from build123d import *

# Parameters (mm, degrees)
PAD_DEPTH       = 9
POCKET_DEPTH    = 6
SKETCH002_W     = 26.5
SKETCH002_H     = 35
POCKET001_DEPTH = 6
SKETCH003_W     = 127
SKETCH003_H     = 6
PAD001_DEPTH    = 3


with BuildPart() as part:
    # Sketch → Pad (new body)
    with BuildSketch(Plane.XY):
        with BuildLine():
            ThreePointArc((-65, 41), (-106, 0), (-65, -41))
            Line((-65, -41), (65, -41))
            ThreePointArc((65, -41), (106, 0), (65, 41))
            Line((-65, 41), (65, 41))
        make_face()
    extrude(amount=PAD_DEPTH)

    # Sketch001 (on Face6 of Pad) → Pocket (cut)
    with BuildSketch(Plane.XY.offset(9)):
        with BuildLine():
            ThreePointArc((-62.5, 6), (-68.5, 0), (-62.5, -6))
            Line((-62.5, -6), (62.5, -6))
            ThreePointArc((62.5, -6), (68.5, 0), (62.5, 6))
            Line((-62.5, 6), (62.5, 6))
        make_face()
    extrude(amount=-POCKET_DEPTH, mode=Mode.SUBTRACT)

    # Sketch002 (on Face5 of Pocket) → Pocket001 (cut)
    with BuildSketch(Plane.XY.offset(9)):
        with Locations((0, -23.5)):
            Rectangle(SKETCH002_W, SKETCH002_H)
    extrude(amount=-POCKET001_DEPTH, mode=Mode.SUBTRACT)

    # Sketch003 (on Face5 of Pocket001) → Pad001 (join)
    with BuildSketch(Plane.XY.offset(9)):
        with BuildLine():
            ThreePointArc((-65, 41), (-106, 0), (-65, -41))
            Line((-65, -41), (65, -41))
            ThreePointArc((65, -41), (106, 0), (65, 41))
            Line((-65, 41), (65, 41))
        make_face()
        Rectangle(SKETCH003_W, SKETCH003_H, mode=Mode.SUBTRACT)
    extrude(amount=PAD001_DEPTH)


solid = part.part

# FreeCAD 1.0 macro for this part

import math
import FreeCAD as App
import Part
import Sketcher
Q = App.Units.Quantity


def add_polygon(sketch, points):
    """Adds a closed chain of lines whose ends are joined by coincident constraints."""
    first, n = sketch.GeometryCount, len(points)
    for a, b in zip(points, points[1:] + points[:1]):
        sketch.addGeometry(Part.LineSegment(App.Vector(*a, 0), App.Vector(*b, 0)), False)
    for i in range(n):
        sketch.addConstraint(Sketcher.Constraint("Coincident", first + i, 2, first + (i + 1) % n, 1))

doc = App.newDocument("Part")
body = doc.addObject("PartDesign::Body", "Body")

sketch1 = body.newObject("Sketcher::SketchObject", "Sketch")
sketch1.AttachmentSupport = (doc.getObject("XY_Plane"), [""])
sketch1.MapMode = "FlatFace"
sketch1.addGeometry(Part.ArcOfCircle(Part.Circle(App.Vector(-65, 0, 0), App.Vector(0, 0, 1), 41), math.radians(90), math.radians(270)), False)
sketch1.addGeometry(Part.LineSegment(App.Vector(-65, -41, 0), App.Vector(65, -41, 0)), False)
sketch1.addGeometry(Part.ArcOfCircle(Part.Circle(App.Vector(65, 0, 0), App.Vector(0, 0, 1), 41), math.radians(-90), math.radians(90)), False)
sketch1.addGeometry(Part.LineSegment(App.Vector(65, 41, 0), App.Vector(-65, 41, 0)), False)
sketch1.addConstraint(Sketcher.Constraint("Tangent", 0, 2, 1, 1))
sketch1.addConstraint(Sketcher.Constraint("Tangent", 1, 2, 2, 1))
sketch1.addConstraint(Sketcher.Constraint("Tangent", 2, 2, 3, 1))
sketch1.addConstraint(Sketcher.Constraint("Tangent", 3, 2, 0, 1))
sketch1.addConstraint(Sketcher.Constraint("Horizontal", 1))
sketch1.addConstraint(Sketcher.Constraint("Horizontal", 3))
sketch1.addConstraint(Sketcher.Constraint("Symmetric", 0, 3, 2, 3, -1, 1))
sketch1.addConstraint(Sketcher.Constraint("Radius", 0, Q("41 mm")))
sketch1.addConstraint(Sketcher.Constraint("DistanceX", 1, 1, 1, 2, Q("130 mm")))
pad1 = body.newObject("PartDesign::Pad", "Pad")
pad1.Profile = sketch1
pad1.Length = 9

sketch2 = body.newObject("Sketcher::SketchObject", "Sketch001")
sketch2.AttachmentSupport = (doc.getObject("XY_Plane"), [""])
sketch2.MapMode = "FlatFace"
sketch2.AttachmentOffset = App.Placement(App.Vector(0, 0, 9), App.Rotation())
sketch2.addGeometry(Part.ArcOfCircle(Part.Circle(App.Vector(-62, 0, 0), App.Vector(0, 0, 1), 6), math.radians(90), math.radians(270)), False)
sketch2.addGeometry(Part.LineSegment(App.Vector(-62, -6, 0), App.Vector(62, -6, 0)), False)
sketch2.addGeometry(Part.ArcOfCircle(Part.Circle(App.Vector(62, 0, 0), App.Vector(0, 0, 1), 6), math.radians(-90), math.radians(90)), False)
sketch2.addGeometry(Part.LineSegment(App.Vector(62, 6, 0), App.Vector(-62, 6, 0)), False)
sketch2.addConstraint(Sketcher.Constraint("Tangent", 0, 2, 1, 1))
sketch2.addConstraint(Sketcher.Constraint("Tangent", 1, 2, 2, 1))
sketch2.addConstraint(Sketcher.Constraint("Tangent", 2, 2, 3, 1))
sketch2.addConstraint(Sketcher.Constraint("Tangent", 3, 2, 0, 1))
sketch2.addConstraint(Sketcher.Constraint("Horizontal", 1))
sketch2.addConstraint(Sketcher.Constraint("Horizontal", 3))
sketch2.addConstraint(Sketcher.Constraint("Symmetric", 0, 3, 2, 3, -1, 1))
sketch2.addConstraint(Sketcher.Constraint("Radius", 0, Q("6 mm")))
sketch2.addConstraint(Sketcher.Constraint("DistanceX", 1, 1, 1, 2, Q("125 mm")))
pocket1 = body.newObject("PartDesign::Pocket", "Pocket")
pocket1.Profile = sketch2
pocket1.Length = 6

sketch3 = body.newObject("Sketcher::SketchObject", "Sketch002")
sketch3.AttachmentSupport = (doc.getObject("XY_Plane"), [""])
sketch3.MapMode = "FlatFace"
sketch3.AttachmentOffset = App.Placement(App.Vector(0, 0, 9), App.Rotation())
add_polygon(sketch3, [(-13, -6), (-13, -41), (13, -41), (13, -6)])
sketch3.addConstraint(Sketcher.Constraint("Vertical", 0))
sketch3.addConstraint(Sketcher.Constraint("Horizontal", 1))
sketch3.addConstraint(Sketcher.Constraint("Vertical", 2))
sketch3.addConstraint(Sketcher.Constraint("Horizontal", 3))
sketch3.addConstraint(Sketcher.Constraint("DistanceY", 0, 2, 0, 1, Q("35 mm")))
sketch3.addConstraint(Sketcher.Constraint("DistanceX", 1, 1, 1, 2, Q("26.5 mm")))
sketch3.addConstraint(Sketcher.Constraint("DistanceY", 0, 2, -1, 1, Q("41 mm")))
sketch3.addConstraint(Sketcher.Constraint("DistanceX", 0, 2, -1, 1, Q("13.25 mm")))
pocket2 = body.newObject("PartDesign::Pocket", "Pocket001")
pocket2.Profile = sketch3
pocket2.Length = 6

sketch4 = body.newObject("Sketcher::SketchObject", "Sketch003")
sketch4.AttachmentSupport = (doc.getObject("XY_Plane"), [""])
sketch4.MapMode = "FlatFace"
sketch4.AttachmentOffset = App.Placement(App.Vector(0, 0, 9), App.Rotation())
sketch4.addGeometry(Part.ArcOfCircle(Part.Circle(App.Vector(-65, 0, 0), App.Vector(0, 0, 1), 41), math.radians(90), math.radians(270)), False)
sketch4.addGeometry(Part.LineSegment(App.Vector(-65, -41, 0), App.Vector(65, -41, 0)), False)
sketch4.addGeometry(Part.ArcOfCircle(Part.Circle(App.Vector(65, 0, 0), App.Vector(0, 0, 1), 41), math.radians(-90), math.radians(90)), False)
sketch4.addGeometry(Part.LineSegment(App.Vector(65, 41, 0), App.Vector(-65, 41, 0)), False)
add_polygon(sketch4, [(64, -3), (-64, -3), (-64, 3), (64, 3)])
sketch4.addConstraint(Sketcher.Constraint("Tangent", 0, 2, 1, 1))
sketch4.addConstraint(Sketcher.Constraint("Tangent", 1, 2, 2, 1))
sketch4.addConstraint(Sketcher.Constraint("Tangent", 2, 2, 3, 1))
sketch4.addConstraint(Sketcher.Constraint("Tangent", 3, 2, 0, 1))
sketch4.addConstraint(Sketcher.Constraint("Horizontal", 1))
sketch4.addConstraint(Sketcher.Constraint("Horizontal", 3))
sketch4.addConstraint(Sketcher.Constraint("Horizontal", 4))
sketch4.addConstraint(Sketcher.Constraint("Vertical", 5))
sketch4.addConstraint(Sketcher.Constraint("Horizontal", 6))
sketch4.addConstraint(Sketcher.Constraint("Vertical", 7))
sketch4.addConstraint(Sketcher.Constraint("Symmetric", 0, 3, 2, 3, -1, 1))
sketch4.addConstraint(Sketcher.Constraint("Symmetric", 4, 2, 6, 2, -1, 1))
sketch4.addConstraint(Sketcher.Constraint("Radius", 0, Q("41 mm")))
sketch4.addConstraint(Sketcher.Constraint("DistanceX", 1, 1, 1, 2, Q("130 mm")))
sketch4.addConstraint(Sketcher.Constraint("DistanceX", 4, 2, 4, 1, Q("127 mm")))
sketch4.addConstraint(Sketcher.Constraint("DistanceY", 5, 1, 5, 2, Q("6 mm")))
pad2 = body.newObject("PartDesign::Pad", "Pad001")
pad2.Profile = sketch4
pad2.Length = 3

doc.recompute()
